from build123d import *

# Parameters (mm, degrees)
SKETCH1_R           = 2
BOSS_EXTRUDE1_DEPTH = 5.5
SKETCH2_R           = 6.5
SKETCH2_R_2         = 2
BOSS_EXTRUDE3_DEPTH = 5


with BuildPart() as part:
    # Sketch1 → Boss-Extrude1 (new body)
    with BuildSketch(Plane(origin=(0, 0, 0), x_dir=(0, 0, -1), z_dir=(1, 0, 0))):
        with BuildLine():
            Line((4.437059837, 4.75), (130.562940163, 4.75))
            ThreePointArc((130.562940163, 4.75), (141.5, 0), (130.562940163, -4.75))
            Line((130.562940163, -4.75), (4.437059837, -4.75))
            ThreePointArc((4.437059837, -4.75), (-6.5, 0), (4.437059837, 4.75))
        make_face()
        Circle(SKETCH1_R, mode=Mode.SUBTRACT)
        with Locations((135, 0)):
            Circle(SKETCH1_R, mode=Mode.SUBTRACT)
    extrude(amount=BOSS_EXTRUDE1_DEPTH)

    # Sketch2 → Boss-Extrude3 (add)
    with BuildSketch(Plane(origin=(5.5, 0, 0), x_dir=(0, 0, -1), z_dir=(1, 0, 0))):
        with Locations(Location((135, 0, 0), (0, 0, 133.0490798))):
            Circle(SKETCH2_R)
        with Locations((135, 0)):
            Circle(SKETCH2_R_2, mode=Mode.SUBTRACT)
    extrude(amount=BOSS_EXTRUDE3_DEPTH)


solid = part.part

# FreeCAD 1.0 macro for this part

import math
import FreeCAD as App
import Part
import Sketcher
Q = App.Units.Quantity

doc = App.newDocument("Part")
body = doc.addObject("PartDesign::Body", "Body")

# Sketch on YZ plane
sketch1 = doc.addObject("Sketcher::SketchObject", "Sketch")
body.addObject(sketch1)
sketch1.AttachmentSupport = (doc.YZ_Plane, [""])
sketch1.MapMode = "FlatFace"
sketch1.addGeometry([
    Part.LineSegment(App.Vector(4.8, -130.6, 0), App.Vector(4.8, -4.4, 0)),  # 0
    Part.ArcOfCircle(Part.Circle(App.Vector(0, 0, 0), App.Vector(0, 0, 1), 6.5), math.radians(-43), math.radians(223)),  # 1
    Part.LineSegment(App.Vector(-4.8, -4.4, 0), App.Vector(-4.8, -130.6, 0)),  # 2
    Part.ArcOfCircle(Part.Circle(App.Vector(0, -135, 0), App.Vector(0, 0, 1), 6.5), math.radians(137), math.radians(403)),  # 3
    Part.Circle(App.Vector(0, -135, 0), App.Vector(0, 0, 1), 2),  # 4
    Part.Circle(App.Vector(0, 0, 0), App.Vector(0, 0, 1), 2),  # 5
], False)
sketch1.addConstraint([
    Sketcher.Constraint("Coincident", 0, 2, 1, 1),
    Sketcher.Constraint("Coincident", 1, 2, 2, 1),
    Sketcher.Constraint("Coincident", 2, 2, 3, 1),
    Sketcher.Constraint("Coincident", 3, 2, 0, 1),
    Sketcher.Constraint("Vertical", 0),
    Sketcher.Constraint("Vertical", 2),
    Sketcher.Constraint("Coincident", 1, 3, -1, 1),
    Sketcher.Constraint("Coincident", 5, 3, -1, 1),
    Sketcher.Constraint("Coincident", 4, 3, 3, 3),
    Sketcher.Constraint("Equal", 1, 3),
    Sketcher.Constraint("Equal", 4, 5),
    Sketcher.Constraint("Symmetric", 2, 2, 3, 2, -2),
    Sketcher.Constraint("Diameter", 4, Q("4 mm")),
    Sketcher.Constraint("Radius", 1, Q("6.5 mm")),
    Sketcher.Constraint("DistanceY", 3, 3, -1, 1, Q("135 mm")),
    Sketcher.Constraint("DistanceX", 1, 2, 0, 2, Q("9.5 mm")),
])
pad1 = doc.addObject("PartDesign::Pad", "Pad")
body.addObject(pad1)
pad1.Profile = sketch1
pad1.Length = 5.5

# Sketch on YZ plane
sketch2 = doc.addObject("Sketcher::SketchObject", "Sketch001")
body.addObject(sketch2)
sketch2.AttachmentSupport = (doc.YZ_Plane, [""])
sketch2.MapMode = "FlatFace"
sketch2.AttachmentOffset = App.Placement(App.Vector(0, 0, 5.5), App.Rotation())
sketch2.addGeometry([
    Part.Circle(App.Vector(0, -135, 0), App.Vector(0, 0, 1), 6.5),
    Part.Circle(App.Vector(0, -135, 0), App.Vector(0, 0, 1), 2),
], False)
sketch2.addConstraint([
    Sketcher.Constraint("Coincident", 1, 3, 0, 3),
    Sketcher.Constraint("PointOnObject", 0, 3, -2),
    Sketcher.Constraint("Diameter", 0, Q("13 mm")),
    Sketcher.Constraint("Diameter", 1, Q("4 mm")),
    Sketcher.Constraint("DistanceY", 0, 3, -1, 1, Q("135 mm")),
])
pad2 = doc.addObject("PartDesign::Pad", "Pad001")
body.addObject(pad2)
pad2.Profile = sketch2
pad2.Length = 5

doc.recompute()
